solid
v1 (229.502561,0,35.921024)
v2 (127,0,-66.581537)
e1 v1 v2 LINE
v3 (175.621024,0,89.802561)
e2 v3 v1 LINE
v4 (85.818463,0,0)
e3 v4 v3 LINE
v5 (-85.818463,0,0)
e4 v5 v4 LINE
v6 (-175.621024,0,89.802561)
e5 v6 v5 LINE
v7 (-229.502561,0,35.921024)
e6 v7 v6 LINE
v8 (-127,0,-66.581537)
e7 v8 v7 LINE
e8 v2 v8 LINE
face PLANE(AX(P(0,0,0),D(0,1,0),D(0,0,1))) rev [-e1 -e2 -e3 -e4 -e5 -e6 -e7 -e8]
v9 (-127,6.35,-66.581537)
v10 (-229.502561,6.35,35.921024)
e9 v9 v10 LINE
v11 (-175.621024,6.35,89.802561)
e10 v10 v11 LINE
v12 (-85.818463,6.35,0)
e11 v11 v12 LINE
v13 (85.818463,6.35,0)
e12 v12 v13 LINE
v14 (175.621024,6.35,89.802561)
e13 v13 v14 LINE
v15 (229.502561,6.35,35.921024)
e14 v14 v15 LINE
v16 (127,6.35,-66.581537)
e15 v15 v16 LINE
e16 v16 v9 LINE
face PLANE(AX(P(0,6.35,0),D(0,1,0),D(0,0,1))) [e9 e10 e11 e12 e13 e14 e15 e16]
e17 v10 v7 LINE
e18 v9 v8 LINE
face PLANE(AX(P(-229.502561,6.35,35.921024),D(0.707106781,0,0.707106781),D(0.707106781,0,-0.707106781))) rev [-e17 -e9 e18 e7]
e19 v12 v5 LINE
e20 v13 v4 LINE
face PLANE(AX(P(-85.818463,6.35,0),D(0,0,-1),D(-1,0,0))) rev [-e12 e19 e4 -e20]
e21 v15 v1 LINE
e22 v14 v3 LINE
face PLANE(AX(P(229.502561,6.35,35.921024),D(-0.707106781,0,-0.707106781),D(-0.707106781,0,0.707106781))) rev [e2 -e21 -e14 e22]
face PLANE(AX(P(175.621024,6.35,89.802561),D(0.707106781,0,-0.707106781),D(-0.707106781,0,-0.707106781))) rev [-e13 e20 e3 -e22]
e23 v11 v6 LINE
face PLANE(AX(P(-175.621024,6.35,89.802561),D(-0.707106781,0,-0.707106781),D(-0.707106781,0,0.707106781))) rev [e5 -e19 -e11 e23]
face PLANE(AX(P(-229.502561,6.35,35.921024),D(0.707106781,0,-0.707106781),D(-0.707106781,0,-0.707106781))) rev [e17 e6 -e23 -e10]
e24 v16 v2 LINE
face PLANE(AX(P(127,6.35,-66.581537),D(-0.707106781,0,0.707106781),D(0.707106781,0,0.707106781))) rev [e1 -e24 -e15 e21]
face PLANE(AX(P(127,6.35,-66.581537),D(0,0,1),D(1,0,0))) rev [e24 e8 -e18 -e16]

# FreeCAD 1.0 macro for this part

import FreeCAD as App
import Part
import Sketcher
Q = App.Units.Quantity


def add_polygon(sketch, points):
    """Adds a closed chain of lines whose ends are joined by coincident constraints."""
    first, n = sketch.GeometryCount, len(points)
    for a, b in zip(points, points[1:] + points[:1]):
        sketch.addGeometry(Part.LineSegment(App.Vector(*a, 0), App.Vector(*b, 0)), False)
    for i in range(n):
        sketch.addConstraint(Sketcher.Constraint("Coincident", first + i, 2, first + (i + 1) % n, 1))

doc = App.newDocument("Part")
body = doc.addObject("PartDesign::Body", "Body")

# Sketch on XZ plane
sketch1 = body.newObject("Sketcher::SketchObject", "Sketch")
sketch1.AttachmentSupport = (doc.getObject("XZ_Plane"), [""])
sketch1.MapMode = "FlatFace"
add_polygon(sketch1, [(-167, -27), (-230, 36), (-176, 90), (-86, 0), (86, 0), (176, 90), (230, 36), (167, -27), (127, -67), (-127, -67)])  # lines 0-9
sketch1.addConstraint([
    Sketcher.Constraint("Horizontal", 3),
    Sketcher.Constraint("Horizontal", 8),
    Sketcher.Constraint("Symmetric", 2, 2, 3, 2, -1, 1),
    Sketcher.Constraint("Symmetric", 1, 2, 4, 2, -2),
    Sketcher.Constraint("Symmetric", 0, 2, 5, 2, -2),
    Sketcher.Constraint("Symmetric", 6, 2, 9, 2, -2),
    Sketcher.Constraint("Perpendicular", 0, 1),
    Sketcher.Constraint("Perpendicular", 1, 2),
    Sketcher.Constraint("Perpendicular", 2, 4),
    Sketcher.Constraint("Parallel", 6, 7),
    Sketcher.Constraint("Perpendicular", 7, 9),
    Sketcher.Constraint("DistanceX", 8, 2, 8, 1, Q("10 in")),
    Sketcher.Constraint("Distance", 1, Q("3 in")),
    Sketcher.Constraint("Distance", 2, Q("5 in")),
    Sketcher.Constraint("Distance", 0, Q("3.5 in")),
    Sketcher.Constraint("DistanceX", 3, 1, 3, 2, Q("171.636927 mm")),
])
pad1 = body.newObject("PartDesign::Pad", "Pad")
pad1.Profile = sketch1
pad1.Length = Q("0.25 in")
pad1.Reversed = True

doc.recompute()
